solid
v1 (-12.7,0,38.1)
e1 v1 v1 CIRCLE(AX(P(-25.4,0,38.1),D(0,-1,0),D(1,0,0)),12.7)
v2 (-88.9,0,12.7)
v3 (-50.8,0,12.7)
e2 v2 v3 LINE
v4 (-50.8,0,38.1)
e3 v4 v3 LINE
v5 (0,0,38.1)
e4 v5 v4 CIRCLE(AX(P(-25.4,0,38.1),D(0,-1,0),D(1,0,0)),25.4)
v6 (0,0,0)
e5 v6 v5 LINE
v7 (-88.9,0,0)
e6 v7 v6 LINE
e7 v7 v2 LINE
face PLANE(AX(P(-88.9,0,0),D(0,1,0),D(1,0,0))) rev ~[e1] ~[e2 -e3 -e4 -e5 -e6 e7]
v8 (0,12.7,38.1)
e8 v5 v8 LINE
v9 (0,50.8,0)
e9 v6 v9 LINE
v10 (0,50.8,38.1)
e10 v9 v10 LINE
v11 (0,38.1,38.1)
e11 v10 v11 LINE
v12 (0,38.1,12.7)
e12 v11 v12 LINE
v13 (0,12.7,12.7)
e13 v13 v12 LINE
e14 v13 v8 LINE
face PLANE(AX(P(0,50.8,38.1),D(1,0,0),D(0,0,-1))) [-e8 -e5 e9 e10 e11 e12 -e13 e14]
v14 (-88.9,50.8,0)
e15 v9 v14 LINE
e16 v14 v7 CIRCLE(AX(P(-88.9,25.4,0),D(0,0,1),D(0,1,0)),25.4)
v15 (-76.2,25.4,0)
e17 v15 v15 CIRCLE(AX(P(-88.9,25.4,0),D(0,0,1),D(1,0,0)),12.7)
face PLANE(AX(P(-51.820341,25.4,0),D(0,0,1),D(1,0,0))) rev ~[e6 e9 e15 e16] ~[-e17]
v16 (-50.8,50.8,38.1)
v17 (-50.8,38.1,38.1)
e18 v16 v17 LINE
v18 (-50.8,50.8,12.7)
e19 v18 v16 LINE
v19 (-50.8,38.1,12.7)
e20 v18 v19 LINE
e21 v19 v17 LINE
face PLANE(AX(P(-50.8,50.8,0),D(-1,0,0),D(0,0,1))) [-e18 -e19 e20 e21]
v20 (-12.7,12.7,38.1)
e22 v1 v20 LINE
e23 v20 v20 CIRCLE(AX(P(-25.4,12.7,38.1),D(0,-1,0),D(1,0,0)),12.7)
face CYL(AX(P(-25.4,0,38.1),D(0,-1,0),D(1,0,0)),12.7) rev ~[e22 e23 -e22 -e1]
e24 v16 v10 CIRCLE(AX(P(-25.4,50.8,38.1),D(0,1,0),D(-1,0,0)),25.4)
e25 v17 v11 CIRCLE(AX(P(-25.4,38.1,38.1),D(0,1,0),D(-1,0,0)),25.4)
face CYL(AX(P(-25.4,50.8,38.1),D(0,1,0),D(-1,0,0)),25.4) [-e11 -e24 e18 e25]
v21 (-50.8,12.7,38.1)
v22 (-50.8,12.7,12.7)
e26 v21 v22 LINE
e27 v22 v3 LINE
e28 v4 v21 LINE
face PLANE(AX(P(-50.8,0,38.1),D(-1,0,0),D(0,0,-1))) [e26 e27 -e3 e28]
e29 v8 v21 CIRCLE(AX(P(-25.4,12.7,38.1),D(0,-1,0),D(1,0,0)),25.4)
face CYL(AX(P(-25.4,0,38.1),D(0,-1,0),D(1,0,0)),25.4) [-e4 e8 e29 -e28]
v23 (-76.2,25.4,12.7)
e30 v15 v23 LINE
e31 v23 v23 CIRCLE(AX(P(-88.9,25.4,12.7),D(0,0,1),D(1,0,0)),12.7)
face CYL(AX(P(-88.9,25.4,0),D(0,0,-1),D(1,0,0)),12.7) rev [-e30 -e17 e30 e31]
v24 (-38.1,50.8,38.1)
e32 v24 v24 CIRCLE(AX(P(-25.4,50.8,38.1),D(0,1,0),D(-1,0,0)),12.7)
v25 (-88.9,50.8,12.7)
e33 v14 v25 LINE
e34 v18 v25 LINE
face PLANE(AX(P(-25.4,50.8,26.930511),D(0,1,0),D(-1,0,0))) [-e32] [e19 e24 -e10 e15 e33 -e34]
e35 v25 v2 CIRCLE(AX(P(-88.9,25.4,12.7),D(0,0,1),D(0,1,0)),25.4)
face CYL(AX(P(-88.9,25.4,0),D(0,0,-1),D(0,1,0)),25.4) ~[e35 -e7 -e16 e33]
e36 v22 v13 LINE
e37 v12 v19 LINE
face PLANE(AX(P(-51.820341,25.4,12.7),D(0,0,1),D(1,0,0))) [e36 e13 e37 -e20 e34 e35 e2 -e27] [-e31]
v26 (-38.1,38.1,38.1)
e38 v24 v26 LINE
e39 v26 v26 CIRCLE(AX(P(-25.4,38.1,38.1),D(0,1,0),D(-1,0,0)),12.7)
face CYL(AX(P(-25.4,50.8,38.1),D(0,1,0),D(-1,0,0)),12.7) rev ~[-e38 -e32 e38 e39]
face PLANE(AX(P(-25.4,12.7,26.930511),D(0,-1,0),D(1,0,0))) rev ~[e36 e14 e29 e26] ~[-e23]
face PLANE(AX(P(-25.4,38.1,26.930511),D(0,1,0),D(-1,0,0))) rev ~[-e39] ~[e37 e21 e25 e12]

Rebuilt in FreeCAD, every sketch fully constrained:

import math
import FreeCAD as App
import Part
import Sketcher
Q = App.Units.Quantity

doc = App.newDocument("Part")
params = doc.addObject("Spreadsheet::Sheet", "Params")
for row, (alias, value) in enumerate([
    ("sketch1_diameter", "1 in"),
    ("sketch1_radius", "1 in"),
    ("sketch1_width", "3.5 in"),
    ("pad1_length", "0.5 in"),
    ("sketch2_diameter", "1 in"),
    ("sketch2_radius", "1 in"),
    ("sketch2_height", "1.5 in"),
    ("pad2_length", "0.5 in"),
    ("sketch3_diameter", "1 in"),
    ("sketch3_radius", "1 in"),
    ("sketch3_height", "1.5 in"),
    ("pad3_length", "0.5 in"),
], start=1):
    params.set(f"A{row}", alias)
    params.set(f"B{row}", "=" + value)
    params.setAlias(f"B{row}", alias)

body = doc.addObject("PartDesign::Body", "Body")

# Sketch on XY plane
sketch1 = body.newObject("Sketcher::SketchObject", "Sketch")
sketch1.AttachmentSupport = (doc.getObject("XY_Plane"), [""])
sketch1.MapMode = "FlatFace"
sketch1.addGeometry([
    Part.LineSegment(App.Vector(-88.9, 0, 0), App.Vector(0, 0, 0)),  # 0
    Part.LineSegment(App.Vector(0, 0, 0), App.Vector(0, 50.8, 0)),  # 1
    Part.LineSegment(App.Vector(0, 50.8, 0), App.Vector(-88.9, 50.8, 0)),  # 2
    Part.ArcOfCircle(Part.Circle(App.Vector(-88.9, 25.4, 0), App.Vector(0, 0, 1), 25.4), math.radians(90), math.radians(270)),  # 3
    Part.Circle(App.Vector(-88.9, 25.4, 0), App.Vector(0, 0, 1), 12.7),  # 4
], False)
sketch1.addConstraint([
    Sketcher.Constraint("Coincident", 0, 2, 1, 1),
    Sketcher.Constraint("Coincident", 1, 2, 2, 1),
    Sketcher.Constraint("Tangent", 2, 2, 3, 1),
    Sketcher.Constraint("Tangent", 3, 2, 0, 1),
    Sketcher.Constraint("Horizontal", 0),
    Sketcher.Constraint("Vertical", 1),
    Sketcher.Constraint("Horizontal", 2),
    Sketcher.Constraint("Coincident", 0, 2, -1, 1),
    Sketcher.Constraint("Coincident", 4, 3, 3, 3),
    Sketcher.Constraint("Diameter", 4, Q("1 in")),
    Sketcher.Constraint("Radius", 3, Q("1 in")),
    Sketcher.Constraint("DistanceX", 0, 1, 0, 2, Q("3.5 in")),
])
sketch1.setExpression("Constraints[9]", "Params.sketch1_diameter")
sketch1.setExpression("Constraints[10]", "Params.sketch1_radius")
sketch1.setExpression("Constraints[11]", "Params.sketch1_width")
pad1 = body.newObject("PartDesign::Pad", "Pad")
pad1.Profile = sketch1
pad1.setExpression("Length", "Params.pad1_length")

# Sketch on XZ plane
sketch2 = body.newObject("Sketcher::SketchObject", "Sketch001")
sketch2.AttachmentSupport = (doc.getObject("XZ_Plane"), [""])
sketch2.MapMode = "FlatFace"
sketch2.addGeometry([
    Part.LineSegment(App.Vector(-50.8, 0, 0), App.Vector(0, 0, 0)),  # 0
    Part.LineSegment(App.Vector(0, 0, 0), App.Vector(0, 38.1, 0)),  # 1
    Part.ArcOfCircle(Part.Circle(App.Vector(-25.4, 38.1, 0), App.Vector(0, 0, 1), 25.4), math.radians(0), math.radians(180)),  # 2
    Part.LineSegment(App.Vector(-50.8, 38.1, 0), App.Vector(-50.8, 0, 0)),  # 3
    Part.Circle(App.Vector(-25.4, 38.1, 0), App.Vector(0, 0, 1), 12.7),  # 4
], False)
sketch2.addConstraint([
    Sketcher.Constraint("Coincident", 0, 2, 1, 1),
    Sketcher.Constraint("Tangent", 1, 2, 2, 1),
    Sketcher.Constraint("Tangent", 2, 2, 3, 1),
    Sketcher.Constraint("Coincident", 3, 2, 0, 1),
    Sketcher.Constraint("Horizontal", 0),
    Sketcher.Constraint("Vertical", 1),
    Sketcher.Constraint("Vertical", 3),
    Sketcher.Constraint("Coincident", 0, 2, -1, 1),
    Sketcher.Constraint("Coincident", 4, 3, 2, 3),
    Sketcher.Constraint("Diameter", 4, Q("1 in")),
    Sketcher.Constraint("Radius", 2, Q("1 in")),
    Sketcher.Constraint("DistanceY", 1, 1, 1, 2, Q("1.5 in")),
])
sketch2.setExpression("Constraints[9]", "Params.sketch2_diameter")
sketch2.setExpression("Constraints[10]", "Params.sketch2_radius")
sketch2.setExpression("Constraints[11]", "Params.sketch2_height")
pad2 = body.newObject("PartDesign::Pad", "Pad001")
pad2.Profile = sketch2
pad2.setExpression("Length", "Params.pad2_length")
pad2.Reversed = True

# Sketch on XZ plane
sketch3 = body.newObject("Sketcher::SketchObject", "Sketch002")
sketch3.AttachmentSupport = (doc.getObject("XZ_Plane"), [""])
sketch3.MapMode = "FlatFace"
sketch3.AttachmentOffset = App.Placement(App.Vector(0, 0, -2 * 25.4), App.Rotation())
sketch3.addGeometry([
    Part.LineSegment(App.Vector(0, 38.1, 0), App.Vector(0, 0, 0)),  # 0
    Part.LineSegment(App.Vector(0, 0, 0), App.Vector(-50.8, 0, 0)),  # 1
    Part.LineSegment(App.Vector(-50.8, 0, 0), App.Vector(-50.8, 38.1, 0)),  # 2
    Part.ArcOfCircle(Part.Circle(App.Vector(-25.4, 38.1, 0), App.Vector(0, 0, 1), 25.4), math.radians(0), math.radians(180)),  # 3
    Part.Circle(App.Vector(-25.4, 38.1, 0), App.Vector(0, 0, 1), 12.7),  # 4
], False)
sketch3.addConstraint([
    Sketcher.Constraint("Coincident", 0, 2, 1, 1),
    Sketcher.Constraint("Coincident", 1, 2, 2, 1),
    Sketcher.Constraint("Tangent", 2, 2, 3, 2),
    Sketcher.Constraint("Tangent", 3, 1, 0, 1),
    Sketcher.Constraint("Vertical", 0),
    Sketcher.Constraint("Horizontal", 1),
    Sketcher.Constraint("Vertical", 2),
    Sketcher.Constraint("Coincident", 0, 2, -1, 1),
    Sketcher.Constraint("Coincident", 4, 3, 3, 3),
    Sketcher.Constraint("Diameter", 4, Q("1 in")),
    Sketcher.Constraint("Radius", 3, Q("1 in")),
    Sketcher.Constraint("DistanceY", 0, 2, 0, 1, Q("1.5 in")),
])
sketch3.setExpression("Constraints[9]", "Params.sketch3_diameter")
sketch3.setExpression("Constraints[10]", "Params.sketch3_radius")
sketch3.setExpression("Constraints[11]", "Params.sketch3_height")
pad3 = body.newObject("PartDesign::Pad", "Pad002")
pad3.Profile = sketch3
pad3.setExpression("Length", "Params.pad3_length")

doc.recompute()
